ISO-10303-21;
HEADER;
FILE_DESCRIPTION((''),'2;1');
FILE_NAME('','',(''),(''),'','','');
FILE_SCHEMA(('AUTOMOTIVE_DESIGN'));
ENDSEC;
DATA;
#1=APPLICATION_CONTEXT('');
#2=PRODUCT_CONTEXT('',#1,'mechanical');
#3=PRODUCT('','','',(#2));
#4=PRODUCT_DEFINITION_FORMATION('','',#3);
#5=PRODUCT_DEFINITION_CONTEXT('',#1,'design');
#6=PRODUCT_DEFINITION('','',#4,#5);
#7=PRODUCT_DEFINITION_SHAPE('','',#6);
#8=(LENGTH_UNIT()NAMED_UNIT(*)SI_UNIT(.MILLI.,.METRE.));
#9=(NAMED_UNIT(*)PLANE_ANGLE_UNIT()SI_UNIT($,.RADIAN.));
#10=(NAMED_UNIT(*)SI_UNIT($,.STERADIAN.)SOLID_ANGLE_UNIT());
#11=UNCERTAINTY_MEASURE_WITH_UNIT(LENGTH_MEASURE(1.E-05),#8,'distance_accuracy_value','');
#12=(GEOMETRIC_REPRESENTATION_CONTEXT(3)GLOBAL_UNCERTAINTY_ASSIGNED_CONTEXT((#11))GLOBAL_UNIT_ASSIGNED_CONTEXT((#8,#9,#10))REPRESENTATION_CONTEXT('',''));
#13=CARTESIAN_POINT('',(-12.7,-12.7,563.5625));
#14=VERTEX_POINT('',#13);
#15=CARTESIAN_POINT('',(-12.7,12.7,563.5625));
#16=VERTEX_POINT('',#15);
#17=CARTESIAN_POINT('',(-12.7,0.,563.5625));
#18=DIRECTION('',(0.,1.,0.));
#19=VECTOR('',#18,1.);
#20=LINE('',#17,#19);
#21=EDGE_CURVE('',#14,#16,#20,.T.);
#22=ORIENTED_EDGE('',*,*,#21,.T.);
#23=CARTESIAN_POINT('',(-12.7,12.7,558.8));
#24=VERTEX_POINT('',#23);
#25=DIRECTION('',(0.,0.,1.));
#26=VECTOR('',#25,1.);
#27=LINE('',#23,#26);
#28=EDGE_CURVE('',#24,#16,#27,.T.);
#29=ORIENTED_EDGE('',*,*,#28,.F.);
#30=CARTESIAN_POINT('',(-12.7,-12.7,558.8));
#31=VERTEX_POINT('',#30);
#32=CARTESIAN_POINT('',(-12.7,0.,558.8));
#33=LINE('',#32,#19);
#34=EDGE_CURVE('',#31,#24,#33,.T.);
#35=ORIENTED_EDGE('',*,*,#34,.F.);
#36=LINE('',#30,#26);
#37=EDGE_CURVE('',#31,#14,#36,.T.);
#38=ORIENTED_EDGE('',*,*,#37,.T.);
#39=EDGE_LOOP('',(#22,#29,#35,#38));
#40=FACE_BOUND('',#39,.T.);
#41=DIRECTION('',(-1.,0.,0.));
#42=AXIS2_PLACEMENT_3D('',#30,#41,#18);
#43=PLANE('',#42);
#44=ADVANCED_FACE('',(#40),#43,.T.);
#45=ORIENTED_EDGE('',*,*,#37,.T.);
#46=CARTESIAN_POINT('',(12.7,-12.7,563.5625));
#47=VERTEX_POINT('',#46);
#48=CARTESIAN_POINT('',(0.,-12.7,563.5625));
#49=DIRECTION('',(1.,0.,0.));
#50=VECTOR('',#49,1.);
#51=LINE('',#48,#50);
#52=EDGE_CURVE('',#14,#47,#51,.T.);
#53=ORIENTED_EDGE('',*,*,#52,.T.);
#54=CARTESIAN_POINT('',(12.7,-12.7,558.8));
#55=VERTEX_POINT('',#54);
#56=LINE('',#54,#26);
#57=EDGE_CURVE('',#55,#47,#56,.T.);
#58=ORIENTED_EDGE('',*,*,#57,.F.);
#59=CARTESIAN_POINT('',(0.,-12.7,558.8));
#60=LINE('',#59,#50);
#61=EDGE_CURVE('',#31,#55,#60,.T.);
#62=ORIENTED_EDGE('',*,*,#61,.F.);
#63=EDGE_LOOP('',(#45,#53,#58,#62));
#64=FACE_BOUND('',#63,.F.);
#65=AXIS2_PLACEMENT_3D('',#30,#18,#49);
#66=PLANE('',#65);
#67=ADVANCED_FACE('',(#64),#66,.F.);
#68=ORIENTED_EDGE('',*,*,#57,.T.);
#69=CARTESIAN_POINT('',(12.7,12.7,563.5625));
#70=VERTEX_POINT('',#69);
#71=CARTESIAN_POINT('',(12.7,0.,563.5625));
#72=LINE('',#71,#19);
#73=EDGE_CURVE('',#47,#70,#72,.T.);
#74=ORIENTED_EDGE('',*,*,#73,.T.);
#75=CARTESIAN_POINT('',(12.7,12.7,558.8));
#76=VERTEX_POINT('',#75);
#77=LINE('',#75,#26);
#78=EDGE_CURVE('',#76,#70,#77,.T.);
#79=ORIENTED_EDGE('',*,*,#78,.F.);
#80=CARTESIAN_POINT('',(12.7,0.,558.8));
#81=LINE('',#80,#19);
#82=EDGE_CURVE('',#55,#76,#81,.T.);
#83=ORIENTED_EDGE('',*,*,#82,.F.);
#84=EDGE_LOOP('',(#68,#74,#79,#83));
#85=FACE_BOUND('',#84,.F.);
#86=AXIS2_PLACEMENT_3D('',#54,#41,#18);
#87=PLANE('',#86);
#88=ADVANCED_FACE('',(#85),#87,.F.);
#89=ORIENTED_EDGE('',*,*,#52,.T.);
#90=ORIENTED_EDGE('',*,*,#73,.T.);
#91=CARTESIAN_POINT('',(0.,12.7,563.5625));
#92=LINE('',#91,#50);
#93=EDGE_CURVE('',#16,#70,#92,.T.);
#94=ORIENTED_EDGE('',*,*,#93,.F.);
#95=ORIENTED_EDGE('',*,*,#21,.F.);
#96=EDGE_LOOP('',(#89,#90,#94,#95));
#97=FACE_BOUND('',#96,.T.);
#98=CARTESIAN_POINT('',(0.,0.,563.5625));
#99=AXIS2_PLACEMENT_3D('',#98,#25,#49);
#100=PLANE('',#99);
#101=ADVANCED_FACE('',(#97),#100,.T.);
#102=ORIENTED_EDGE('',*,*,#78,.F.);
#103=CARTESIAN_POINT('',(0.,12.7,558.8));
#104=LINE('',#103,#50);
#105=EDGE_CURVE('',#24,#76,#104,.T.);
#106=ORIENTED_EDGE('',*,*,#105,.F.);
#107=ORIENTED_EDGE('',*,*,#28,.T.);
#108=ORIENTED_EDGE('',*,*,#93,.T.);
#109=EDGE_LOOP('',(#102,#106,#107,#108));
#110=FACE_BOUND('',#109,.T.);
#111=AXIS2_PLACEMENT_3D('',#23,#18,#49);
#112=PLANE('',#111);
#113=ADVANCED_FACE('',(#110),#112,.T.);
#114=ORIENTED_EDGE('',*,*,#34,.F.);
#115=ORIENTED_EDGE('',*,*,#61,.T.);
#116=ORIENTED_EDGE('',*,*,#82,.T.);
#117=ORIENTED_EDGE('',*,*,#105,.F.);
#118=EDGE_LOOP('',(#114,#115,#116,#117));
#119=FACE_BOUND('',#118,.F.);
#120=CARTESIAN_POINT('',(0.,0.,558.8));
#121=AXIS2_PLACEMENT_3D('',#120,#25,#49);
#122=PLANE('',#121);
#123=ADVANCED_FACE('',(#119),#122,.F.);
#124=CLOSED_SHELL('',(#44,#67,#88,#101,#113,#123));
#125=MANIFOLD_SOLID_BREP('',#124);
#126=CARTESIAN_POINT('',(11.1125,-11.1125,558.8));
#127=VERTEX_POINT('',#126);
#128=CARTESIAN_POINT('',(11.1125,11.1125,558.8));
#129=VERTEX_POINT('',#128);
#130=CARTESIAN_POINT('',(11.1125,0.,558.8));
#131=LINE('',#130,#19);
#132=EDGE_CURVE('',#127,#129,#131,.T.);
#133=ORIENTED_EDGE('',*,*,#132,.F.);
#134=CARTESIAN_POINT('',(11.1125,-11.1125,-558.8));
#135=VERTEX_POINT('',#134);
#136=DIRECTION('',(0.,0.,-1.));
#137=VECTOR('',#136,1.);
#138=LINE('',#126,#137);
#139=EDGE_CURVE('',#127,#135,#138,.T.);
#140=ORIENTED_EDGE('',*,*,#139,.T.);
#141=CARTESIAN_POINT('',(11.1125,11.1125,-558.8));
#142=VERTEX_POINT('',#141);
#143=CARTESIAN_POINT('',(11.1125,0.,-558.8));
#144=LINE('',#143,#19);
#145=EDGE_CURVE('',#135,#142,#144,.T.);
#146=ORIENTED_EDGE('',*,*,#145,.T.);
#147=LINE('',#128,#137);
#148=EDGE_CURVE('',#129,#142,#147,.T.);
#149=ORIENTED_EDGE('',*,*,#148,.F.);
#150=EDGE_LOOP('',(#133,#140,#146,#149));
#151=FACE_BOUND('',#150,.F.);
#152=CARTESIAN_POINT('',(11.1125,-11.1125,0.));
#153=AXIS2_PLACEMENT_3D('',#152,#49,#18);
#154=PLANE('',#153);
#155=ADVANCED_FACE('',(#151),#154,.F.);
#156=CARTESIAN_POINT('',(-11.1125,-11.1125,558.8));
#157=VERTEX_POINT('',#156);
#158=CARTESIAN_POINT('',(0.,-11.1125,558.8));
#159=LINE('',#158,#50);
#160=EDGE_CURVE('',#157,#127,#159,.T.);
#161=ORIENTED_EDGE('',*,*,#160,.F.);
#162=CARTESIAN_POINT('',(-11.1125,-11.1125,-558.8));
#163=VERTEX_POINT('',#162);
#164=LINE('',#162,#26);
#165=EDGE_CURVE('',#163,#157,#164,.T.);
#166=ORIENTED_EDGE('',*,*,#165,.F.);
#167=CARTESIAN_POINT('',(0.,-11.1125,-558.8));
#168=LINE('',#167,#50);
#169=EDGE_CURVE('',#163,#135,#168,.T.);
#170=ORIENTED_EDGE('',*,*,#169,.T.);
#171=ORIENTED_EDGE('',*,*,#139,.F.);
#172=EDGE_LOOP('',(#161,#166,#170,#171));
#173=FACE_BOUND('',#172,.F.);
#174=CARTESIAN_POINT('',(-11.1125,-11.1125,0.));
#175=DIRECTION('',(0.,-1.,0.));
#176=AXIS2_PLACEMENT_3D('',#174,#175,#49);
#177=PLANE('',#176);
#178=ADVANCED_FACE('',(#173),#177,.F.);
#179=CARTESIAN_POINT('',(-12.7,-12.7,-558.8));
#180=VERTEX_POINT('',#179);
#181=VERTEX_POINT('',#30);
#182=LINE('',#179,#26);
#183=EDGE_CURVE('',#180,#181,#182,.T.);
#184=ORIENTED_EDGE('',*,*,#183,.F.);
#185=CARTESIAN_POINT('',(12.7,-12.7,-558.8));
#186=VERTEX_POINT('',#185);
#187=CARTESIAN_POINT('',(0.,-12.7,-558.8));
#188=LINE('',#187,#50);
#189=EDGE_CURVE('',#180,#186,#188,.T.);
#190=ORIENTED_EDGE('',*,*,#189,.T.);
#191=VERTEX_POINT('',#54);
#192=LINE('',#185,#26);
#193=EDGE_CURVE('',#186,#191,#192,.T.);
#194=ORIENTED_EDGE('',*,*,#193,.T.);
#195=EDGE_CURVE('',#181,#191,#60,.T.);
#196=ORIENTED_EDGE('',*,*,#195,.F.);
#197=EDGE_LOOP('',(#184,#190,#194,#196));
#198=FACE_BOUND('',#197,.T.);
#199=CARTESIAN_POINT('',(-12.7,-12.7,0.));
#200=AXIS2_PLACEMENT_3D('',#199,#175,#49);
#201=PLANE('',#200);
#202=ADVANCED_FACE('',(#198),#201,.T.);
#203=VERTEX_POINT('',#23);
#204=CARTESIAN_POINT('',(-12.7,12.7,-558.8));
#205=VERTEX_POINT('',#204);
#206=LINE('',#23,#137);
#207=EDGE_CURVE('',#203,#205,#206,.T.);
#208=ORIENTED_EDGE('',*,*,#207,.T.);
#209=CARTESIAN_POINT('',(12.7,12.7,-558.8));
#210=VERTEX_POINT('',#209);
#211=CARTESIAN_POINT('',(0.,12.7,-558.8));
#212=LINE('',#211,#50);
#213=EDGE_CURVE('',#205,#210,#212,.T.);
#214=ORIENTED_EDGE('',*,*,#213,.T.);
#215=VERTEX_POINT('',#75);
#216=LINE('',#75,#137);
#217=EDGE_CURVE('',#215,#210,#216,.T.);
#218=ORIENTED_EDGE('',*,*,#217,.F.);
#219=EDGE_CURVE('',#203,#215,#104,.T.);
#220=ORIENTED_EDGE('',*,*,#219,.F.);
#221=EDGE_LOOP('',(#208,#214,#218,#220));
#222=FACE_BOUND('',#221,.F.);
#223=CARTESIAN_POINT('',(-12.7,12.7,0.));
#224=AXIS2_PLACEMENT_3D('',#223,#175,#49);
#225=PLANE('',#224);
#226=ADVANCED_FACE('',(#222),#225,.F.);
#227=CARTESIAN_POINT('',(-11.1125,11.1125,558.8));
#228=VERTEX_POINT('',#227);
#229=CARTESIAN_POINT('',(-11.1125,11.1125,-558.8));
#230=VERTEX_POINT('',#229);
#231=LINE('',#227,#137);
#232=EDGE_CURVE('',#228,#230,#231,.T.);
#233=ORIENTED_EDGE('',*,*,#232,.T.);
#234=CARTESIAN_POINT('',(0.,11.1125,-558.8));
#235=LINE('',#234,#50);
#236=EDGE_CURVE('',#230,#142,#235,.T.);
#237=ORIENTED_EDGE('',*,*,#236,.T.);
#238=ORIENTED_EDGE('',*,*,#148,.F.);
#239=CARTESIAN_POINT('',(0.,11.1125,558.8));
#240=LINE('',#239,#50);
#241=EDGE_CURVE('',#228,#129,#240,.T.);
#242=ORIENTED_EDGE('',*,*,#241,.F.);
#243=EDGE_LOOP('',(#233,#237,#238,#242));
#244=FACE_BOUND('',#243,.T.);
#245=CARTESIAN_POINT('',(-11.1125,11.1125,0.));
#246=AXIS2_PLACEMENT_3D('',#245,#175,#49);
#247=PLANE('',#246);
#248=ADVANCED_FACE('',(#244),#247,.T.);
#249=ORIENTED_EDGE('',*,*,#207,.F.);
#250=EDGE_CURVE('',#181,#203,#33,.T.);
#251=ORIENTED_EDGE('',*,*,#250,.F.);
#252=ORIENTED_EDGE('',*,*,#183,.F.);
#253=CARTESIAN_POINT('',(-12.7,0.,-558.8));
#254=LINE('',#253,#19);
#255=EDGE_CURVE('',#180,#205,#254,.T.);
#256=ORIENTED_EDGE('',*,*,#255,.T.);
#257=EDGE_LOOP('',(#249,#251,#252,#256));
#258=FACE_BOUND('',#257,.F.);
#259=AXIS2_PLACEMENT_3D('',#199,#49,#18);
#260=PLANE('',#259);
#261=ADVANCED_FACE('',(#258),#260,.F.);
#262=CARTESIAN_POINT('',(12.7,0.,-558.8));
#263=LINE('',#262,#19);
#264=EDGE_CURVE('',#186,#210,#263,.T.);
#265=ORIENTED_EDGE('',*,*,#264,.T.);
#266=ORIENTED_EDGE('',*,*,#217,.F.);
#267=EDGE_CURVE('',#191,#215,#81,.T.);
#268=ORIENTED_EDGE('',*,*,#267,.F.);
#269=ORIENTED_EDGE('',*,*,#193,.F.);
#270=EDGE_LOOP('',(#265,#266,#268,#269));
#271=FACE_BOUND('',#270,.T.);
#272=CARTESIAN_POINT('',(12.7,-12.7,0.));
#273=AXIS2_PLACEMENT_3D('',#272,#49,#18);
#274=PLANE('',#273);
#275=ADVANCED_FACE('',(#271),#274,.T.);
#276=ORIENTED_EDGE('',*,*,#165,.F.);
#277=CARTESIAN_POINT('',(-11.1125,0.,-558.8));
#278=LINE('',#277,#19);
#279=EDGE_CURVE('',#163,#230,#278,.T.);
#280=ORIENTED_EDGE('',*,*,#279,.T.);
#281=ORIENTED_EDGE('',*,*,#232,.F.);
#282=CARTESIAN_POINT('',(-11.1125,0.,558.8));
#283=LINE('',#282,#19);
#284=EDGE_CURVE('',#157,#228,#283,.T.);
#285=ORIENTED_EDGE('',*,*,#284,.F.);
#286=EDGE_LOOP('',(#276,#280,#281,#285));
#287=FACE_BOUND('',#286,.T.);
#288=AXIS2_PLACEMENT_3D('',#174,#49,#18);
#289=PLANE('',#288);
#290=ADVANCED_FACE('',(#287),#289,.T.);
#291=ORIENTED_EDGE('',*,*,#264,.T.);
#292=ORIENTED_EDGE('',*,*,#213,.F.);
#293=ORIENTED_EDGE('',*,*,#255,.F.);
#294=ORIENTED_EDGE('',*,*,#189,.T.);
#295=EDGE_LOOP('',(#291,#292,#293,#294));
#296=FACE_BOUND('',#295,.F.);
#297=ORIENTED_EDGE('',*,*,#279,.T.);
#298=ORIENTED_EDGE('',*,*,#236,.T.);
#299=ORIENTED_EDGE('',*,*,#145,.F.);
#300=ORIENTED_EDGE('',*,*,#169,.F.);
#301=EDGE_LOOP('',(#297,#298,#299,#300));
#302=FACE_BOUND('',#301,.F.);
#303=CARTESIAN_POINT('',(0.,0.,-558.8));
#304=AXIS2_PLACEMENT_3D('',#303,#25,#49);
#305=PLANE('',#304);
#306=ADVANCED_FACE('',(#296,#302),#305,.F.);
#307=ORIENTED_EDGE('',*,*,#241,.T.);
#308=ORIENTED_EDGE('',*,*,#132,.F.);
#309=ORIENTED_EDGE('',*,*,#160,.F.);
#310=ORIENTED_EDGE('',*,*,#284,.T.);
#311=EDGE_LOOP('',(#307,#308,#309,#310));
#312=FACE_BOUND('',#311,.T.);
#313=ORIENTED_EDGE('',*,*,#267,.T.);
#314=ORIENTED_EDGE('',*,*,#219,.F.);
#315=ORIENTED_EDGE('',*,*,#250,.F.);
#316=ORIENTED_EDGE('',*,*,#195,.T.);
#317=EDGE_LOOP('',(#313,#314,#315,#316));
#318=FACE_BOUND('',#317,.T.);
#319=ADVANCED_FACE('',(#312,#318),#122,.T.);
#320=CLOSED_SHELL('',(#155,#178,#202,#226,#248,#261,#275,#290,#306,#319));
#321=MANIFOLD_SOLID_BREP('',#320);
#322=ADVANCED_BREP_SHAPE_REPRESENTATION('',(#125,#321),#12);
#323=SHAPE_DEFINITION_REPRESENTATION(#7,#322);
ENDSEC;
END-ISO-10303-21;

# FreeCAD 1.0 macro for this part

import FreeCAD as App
import Part
import Sketcher
from FreeCAD import Vector
Q = App.Units.Quantity

doc = App.newDocument("Part")
body = doc.addObject("PartDesign::Body", "Body")

# Sketch on XY plane
sketch1 = doc.addObject("Sketcher::SketchObject", "Sketch")
body.addObject(sketch1)
sketch1.AttachmentSupport = (doc.XY_Plane, [""])
sketch1.MapMode = "FlatFace"
sketch1.addGeometry([
    Part.LineSegment(Vector(-12.7, 12.7, 0), Vector(-12.7, -12.7, 0)),  # 0
    Part.LineSegment(Vector(-12.7, -12.7, 0), Vector(12.7, -12.7, 0)),  # 1
    Part.LineSegment(Vector(12.7, -12.7, 0), Vector(12.7, 12.7, 0)),  # 2
    Part.LineSegment(Vector(12.7, 12.7, 0), Vector(-12.7, 12.7, 0)),  # 3
    Part.LineSegment(Vector(11.1125, -11.1125, 0), Vector(-11.1125, -11.1125, 0)),  # 4
    Part.LineSegment(Vector(-11.1125, -11.1125, 0), Vector(-11.1125, 11.1125, 0)),  # 5
    Part.LineSegment(Vector(-11.1125, 11.1125, 0), Vector(11.1125, 11.1125, 0)),  # 6
    Part.LineSegment(Vector(11.1125, 11.1125, 0), Vector(11.1125, -11.1125, 0)),  # 7
], False)
sketch1.addConstraint([
    Sketcher.Constraint("Coincident", 0, 2, 1, 1),
    Sketcher.Constraint("Coincident", 1, 2, 2, 1),
    Sketcher.Constraint("Coincident", 2, 2, 3, 1),
    Sketcher.Constraint("Coincident", 3, 2, 0, 1),
    Sketcher.Constraint("Coincident", 4, 2, 5, 1),
    Sketcher.Constraint("Coincident", 5, 2, 6, 1),
    Sketcher.Constraint("Coincident", 6, 2, 7, 1),
    Sketcher.Constraint("Coincident", 7, 2, 4, 1),
    Sketcher.Constraint("Vertical", 0),
    Sketcher.Constraint("Horizontal", 1),
    Sketcher.Constraint("Vertical", 2),
    Sketcher.Constraint("Horizontal", 3),
    Sketcher.Constraint("Horizontal", 4),
    Sketcher.Constraint("Vertical", 5),
    Sketcher.Constraint("Horizontal", 6),
    Sketcher.Constraint("Vertical", 7),
    Sketcher.Constraint("Symmetric", 0, 2, 2, 2, -1, 1),
    Sketcher.Constraint("Symmetric", 4, 2, 6, 2, -1, 1),
    Sketcher.Constraint("Equal", 3, 0),
    Sketcher.Constraint("Equal", 6, 5),
    Sketcher.Constraint("DistanceX", 1, 1, 1, 2, Q("1 in")),
    Sketcher.Constraint("DistanceX", 4, 2, 4, 1, Q("0.875 in")),
])
pad1 = doc.addObject("PartDesign::Pad", "Pad")
body.addObject(pad1)
pad1.Profile = sketch1
pad1.Length = Q("44 in")
pad1.Midplane = True
body2 = doc.addObject("PartDesign::Body", "Body001")

# Sketch on XY plane
sketch2 = doc.addObject("Sketcher::SketchObject", "Sketch001")
body2.addObject(sketch2)
sketch2.AttachmentSupport = (doc.getObject("XY_Plane001"), [""])
sketch2.MapMode = "FlatFace"
sketch2.AttachmentOffset = App.Placement(Vector(0, 0, 22 * 25.4), App.Rotation())
sketch2.addGeometry([
    Part.LineSegment(Vector(-12.7, 12.7, 0), Vector(-12.7, -12.7, 0)),
    Part.LineSegment(Vector(-12.7, -12.7, 0), Vector(12.7, -12.7, 0)),
    Part.LineSegment(Vector(12.7, -12.7, 0), Vector(12.7, 12.7, 0)),
    Part.LineSegment(Vector(12.7, 12.7, 0), Vector(-12.7, 12.7, 0)),
], False)
sketch2.addConstraint([
    Sketcher.Constraint("Coincident", 0, 2, 1, 1),
    Sketcher.Constraint("Coincident", 1, 2, 2, 1),
    Sketcher.Constraint("Coincident", 2, 2, 3, 1),
    Sketcher.Constraint("Coincident", 3, 2, 0, 1),
    Sketcher.Constraint("Vertical", 0),
    Sketcher.Constraint("Horizontal", 1),
    Sketcher.Constraint("Vertical", 2),
    Sketcher.Constraint("Horizontal", 3),
    Sketcher.Constraint("Symmetric", 0, 2, 2, 2, -1, 1),
    Sketcher.Constraint("Equal", 3, 0),
    Sketcher.Constraint("DistanceX", 1, 1, 1, 2, Q("1 in")),
])
pad2 = doc.addObject("PartDesign::Pad", "Pad001")
body2.addObject(pad2)
pad2.Profile = sketch2
pad2.Length = Q("0.1875 in")

doc.recompute()
